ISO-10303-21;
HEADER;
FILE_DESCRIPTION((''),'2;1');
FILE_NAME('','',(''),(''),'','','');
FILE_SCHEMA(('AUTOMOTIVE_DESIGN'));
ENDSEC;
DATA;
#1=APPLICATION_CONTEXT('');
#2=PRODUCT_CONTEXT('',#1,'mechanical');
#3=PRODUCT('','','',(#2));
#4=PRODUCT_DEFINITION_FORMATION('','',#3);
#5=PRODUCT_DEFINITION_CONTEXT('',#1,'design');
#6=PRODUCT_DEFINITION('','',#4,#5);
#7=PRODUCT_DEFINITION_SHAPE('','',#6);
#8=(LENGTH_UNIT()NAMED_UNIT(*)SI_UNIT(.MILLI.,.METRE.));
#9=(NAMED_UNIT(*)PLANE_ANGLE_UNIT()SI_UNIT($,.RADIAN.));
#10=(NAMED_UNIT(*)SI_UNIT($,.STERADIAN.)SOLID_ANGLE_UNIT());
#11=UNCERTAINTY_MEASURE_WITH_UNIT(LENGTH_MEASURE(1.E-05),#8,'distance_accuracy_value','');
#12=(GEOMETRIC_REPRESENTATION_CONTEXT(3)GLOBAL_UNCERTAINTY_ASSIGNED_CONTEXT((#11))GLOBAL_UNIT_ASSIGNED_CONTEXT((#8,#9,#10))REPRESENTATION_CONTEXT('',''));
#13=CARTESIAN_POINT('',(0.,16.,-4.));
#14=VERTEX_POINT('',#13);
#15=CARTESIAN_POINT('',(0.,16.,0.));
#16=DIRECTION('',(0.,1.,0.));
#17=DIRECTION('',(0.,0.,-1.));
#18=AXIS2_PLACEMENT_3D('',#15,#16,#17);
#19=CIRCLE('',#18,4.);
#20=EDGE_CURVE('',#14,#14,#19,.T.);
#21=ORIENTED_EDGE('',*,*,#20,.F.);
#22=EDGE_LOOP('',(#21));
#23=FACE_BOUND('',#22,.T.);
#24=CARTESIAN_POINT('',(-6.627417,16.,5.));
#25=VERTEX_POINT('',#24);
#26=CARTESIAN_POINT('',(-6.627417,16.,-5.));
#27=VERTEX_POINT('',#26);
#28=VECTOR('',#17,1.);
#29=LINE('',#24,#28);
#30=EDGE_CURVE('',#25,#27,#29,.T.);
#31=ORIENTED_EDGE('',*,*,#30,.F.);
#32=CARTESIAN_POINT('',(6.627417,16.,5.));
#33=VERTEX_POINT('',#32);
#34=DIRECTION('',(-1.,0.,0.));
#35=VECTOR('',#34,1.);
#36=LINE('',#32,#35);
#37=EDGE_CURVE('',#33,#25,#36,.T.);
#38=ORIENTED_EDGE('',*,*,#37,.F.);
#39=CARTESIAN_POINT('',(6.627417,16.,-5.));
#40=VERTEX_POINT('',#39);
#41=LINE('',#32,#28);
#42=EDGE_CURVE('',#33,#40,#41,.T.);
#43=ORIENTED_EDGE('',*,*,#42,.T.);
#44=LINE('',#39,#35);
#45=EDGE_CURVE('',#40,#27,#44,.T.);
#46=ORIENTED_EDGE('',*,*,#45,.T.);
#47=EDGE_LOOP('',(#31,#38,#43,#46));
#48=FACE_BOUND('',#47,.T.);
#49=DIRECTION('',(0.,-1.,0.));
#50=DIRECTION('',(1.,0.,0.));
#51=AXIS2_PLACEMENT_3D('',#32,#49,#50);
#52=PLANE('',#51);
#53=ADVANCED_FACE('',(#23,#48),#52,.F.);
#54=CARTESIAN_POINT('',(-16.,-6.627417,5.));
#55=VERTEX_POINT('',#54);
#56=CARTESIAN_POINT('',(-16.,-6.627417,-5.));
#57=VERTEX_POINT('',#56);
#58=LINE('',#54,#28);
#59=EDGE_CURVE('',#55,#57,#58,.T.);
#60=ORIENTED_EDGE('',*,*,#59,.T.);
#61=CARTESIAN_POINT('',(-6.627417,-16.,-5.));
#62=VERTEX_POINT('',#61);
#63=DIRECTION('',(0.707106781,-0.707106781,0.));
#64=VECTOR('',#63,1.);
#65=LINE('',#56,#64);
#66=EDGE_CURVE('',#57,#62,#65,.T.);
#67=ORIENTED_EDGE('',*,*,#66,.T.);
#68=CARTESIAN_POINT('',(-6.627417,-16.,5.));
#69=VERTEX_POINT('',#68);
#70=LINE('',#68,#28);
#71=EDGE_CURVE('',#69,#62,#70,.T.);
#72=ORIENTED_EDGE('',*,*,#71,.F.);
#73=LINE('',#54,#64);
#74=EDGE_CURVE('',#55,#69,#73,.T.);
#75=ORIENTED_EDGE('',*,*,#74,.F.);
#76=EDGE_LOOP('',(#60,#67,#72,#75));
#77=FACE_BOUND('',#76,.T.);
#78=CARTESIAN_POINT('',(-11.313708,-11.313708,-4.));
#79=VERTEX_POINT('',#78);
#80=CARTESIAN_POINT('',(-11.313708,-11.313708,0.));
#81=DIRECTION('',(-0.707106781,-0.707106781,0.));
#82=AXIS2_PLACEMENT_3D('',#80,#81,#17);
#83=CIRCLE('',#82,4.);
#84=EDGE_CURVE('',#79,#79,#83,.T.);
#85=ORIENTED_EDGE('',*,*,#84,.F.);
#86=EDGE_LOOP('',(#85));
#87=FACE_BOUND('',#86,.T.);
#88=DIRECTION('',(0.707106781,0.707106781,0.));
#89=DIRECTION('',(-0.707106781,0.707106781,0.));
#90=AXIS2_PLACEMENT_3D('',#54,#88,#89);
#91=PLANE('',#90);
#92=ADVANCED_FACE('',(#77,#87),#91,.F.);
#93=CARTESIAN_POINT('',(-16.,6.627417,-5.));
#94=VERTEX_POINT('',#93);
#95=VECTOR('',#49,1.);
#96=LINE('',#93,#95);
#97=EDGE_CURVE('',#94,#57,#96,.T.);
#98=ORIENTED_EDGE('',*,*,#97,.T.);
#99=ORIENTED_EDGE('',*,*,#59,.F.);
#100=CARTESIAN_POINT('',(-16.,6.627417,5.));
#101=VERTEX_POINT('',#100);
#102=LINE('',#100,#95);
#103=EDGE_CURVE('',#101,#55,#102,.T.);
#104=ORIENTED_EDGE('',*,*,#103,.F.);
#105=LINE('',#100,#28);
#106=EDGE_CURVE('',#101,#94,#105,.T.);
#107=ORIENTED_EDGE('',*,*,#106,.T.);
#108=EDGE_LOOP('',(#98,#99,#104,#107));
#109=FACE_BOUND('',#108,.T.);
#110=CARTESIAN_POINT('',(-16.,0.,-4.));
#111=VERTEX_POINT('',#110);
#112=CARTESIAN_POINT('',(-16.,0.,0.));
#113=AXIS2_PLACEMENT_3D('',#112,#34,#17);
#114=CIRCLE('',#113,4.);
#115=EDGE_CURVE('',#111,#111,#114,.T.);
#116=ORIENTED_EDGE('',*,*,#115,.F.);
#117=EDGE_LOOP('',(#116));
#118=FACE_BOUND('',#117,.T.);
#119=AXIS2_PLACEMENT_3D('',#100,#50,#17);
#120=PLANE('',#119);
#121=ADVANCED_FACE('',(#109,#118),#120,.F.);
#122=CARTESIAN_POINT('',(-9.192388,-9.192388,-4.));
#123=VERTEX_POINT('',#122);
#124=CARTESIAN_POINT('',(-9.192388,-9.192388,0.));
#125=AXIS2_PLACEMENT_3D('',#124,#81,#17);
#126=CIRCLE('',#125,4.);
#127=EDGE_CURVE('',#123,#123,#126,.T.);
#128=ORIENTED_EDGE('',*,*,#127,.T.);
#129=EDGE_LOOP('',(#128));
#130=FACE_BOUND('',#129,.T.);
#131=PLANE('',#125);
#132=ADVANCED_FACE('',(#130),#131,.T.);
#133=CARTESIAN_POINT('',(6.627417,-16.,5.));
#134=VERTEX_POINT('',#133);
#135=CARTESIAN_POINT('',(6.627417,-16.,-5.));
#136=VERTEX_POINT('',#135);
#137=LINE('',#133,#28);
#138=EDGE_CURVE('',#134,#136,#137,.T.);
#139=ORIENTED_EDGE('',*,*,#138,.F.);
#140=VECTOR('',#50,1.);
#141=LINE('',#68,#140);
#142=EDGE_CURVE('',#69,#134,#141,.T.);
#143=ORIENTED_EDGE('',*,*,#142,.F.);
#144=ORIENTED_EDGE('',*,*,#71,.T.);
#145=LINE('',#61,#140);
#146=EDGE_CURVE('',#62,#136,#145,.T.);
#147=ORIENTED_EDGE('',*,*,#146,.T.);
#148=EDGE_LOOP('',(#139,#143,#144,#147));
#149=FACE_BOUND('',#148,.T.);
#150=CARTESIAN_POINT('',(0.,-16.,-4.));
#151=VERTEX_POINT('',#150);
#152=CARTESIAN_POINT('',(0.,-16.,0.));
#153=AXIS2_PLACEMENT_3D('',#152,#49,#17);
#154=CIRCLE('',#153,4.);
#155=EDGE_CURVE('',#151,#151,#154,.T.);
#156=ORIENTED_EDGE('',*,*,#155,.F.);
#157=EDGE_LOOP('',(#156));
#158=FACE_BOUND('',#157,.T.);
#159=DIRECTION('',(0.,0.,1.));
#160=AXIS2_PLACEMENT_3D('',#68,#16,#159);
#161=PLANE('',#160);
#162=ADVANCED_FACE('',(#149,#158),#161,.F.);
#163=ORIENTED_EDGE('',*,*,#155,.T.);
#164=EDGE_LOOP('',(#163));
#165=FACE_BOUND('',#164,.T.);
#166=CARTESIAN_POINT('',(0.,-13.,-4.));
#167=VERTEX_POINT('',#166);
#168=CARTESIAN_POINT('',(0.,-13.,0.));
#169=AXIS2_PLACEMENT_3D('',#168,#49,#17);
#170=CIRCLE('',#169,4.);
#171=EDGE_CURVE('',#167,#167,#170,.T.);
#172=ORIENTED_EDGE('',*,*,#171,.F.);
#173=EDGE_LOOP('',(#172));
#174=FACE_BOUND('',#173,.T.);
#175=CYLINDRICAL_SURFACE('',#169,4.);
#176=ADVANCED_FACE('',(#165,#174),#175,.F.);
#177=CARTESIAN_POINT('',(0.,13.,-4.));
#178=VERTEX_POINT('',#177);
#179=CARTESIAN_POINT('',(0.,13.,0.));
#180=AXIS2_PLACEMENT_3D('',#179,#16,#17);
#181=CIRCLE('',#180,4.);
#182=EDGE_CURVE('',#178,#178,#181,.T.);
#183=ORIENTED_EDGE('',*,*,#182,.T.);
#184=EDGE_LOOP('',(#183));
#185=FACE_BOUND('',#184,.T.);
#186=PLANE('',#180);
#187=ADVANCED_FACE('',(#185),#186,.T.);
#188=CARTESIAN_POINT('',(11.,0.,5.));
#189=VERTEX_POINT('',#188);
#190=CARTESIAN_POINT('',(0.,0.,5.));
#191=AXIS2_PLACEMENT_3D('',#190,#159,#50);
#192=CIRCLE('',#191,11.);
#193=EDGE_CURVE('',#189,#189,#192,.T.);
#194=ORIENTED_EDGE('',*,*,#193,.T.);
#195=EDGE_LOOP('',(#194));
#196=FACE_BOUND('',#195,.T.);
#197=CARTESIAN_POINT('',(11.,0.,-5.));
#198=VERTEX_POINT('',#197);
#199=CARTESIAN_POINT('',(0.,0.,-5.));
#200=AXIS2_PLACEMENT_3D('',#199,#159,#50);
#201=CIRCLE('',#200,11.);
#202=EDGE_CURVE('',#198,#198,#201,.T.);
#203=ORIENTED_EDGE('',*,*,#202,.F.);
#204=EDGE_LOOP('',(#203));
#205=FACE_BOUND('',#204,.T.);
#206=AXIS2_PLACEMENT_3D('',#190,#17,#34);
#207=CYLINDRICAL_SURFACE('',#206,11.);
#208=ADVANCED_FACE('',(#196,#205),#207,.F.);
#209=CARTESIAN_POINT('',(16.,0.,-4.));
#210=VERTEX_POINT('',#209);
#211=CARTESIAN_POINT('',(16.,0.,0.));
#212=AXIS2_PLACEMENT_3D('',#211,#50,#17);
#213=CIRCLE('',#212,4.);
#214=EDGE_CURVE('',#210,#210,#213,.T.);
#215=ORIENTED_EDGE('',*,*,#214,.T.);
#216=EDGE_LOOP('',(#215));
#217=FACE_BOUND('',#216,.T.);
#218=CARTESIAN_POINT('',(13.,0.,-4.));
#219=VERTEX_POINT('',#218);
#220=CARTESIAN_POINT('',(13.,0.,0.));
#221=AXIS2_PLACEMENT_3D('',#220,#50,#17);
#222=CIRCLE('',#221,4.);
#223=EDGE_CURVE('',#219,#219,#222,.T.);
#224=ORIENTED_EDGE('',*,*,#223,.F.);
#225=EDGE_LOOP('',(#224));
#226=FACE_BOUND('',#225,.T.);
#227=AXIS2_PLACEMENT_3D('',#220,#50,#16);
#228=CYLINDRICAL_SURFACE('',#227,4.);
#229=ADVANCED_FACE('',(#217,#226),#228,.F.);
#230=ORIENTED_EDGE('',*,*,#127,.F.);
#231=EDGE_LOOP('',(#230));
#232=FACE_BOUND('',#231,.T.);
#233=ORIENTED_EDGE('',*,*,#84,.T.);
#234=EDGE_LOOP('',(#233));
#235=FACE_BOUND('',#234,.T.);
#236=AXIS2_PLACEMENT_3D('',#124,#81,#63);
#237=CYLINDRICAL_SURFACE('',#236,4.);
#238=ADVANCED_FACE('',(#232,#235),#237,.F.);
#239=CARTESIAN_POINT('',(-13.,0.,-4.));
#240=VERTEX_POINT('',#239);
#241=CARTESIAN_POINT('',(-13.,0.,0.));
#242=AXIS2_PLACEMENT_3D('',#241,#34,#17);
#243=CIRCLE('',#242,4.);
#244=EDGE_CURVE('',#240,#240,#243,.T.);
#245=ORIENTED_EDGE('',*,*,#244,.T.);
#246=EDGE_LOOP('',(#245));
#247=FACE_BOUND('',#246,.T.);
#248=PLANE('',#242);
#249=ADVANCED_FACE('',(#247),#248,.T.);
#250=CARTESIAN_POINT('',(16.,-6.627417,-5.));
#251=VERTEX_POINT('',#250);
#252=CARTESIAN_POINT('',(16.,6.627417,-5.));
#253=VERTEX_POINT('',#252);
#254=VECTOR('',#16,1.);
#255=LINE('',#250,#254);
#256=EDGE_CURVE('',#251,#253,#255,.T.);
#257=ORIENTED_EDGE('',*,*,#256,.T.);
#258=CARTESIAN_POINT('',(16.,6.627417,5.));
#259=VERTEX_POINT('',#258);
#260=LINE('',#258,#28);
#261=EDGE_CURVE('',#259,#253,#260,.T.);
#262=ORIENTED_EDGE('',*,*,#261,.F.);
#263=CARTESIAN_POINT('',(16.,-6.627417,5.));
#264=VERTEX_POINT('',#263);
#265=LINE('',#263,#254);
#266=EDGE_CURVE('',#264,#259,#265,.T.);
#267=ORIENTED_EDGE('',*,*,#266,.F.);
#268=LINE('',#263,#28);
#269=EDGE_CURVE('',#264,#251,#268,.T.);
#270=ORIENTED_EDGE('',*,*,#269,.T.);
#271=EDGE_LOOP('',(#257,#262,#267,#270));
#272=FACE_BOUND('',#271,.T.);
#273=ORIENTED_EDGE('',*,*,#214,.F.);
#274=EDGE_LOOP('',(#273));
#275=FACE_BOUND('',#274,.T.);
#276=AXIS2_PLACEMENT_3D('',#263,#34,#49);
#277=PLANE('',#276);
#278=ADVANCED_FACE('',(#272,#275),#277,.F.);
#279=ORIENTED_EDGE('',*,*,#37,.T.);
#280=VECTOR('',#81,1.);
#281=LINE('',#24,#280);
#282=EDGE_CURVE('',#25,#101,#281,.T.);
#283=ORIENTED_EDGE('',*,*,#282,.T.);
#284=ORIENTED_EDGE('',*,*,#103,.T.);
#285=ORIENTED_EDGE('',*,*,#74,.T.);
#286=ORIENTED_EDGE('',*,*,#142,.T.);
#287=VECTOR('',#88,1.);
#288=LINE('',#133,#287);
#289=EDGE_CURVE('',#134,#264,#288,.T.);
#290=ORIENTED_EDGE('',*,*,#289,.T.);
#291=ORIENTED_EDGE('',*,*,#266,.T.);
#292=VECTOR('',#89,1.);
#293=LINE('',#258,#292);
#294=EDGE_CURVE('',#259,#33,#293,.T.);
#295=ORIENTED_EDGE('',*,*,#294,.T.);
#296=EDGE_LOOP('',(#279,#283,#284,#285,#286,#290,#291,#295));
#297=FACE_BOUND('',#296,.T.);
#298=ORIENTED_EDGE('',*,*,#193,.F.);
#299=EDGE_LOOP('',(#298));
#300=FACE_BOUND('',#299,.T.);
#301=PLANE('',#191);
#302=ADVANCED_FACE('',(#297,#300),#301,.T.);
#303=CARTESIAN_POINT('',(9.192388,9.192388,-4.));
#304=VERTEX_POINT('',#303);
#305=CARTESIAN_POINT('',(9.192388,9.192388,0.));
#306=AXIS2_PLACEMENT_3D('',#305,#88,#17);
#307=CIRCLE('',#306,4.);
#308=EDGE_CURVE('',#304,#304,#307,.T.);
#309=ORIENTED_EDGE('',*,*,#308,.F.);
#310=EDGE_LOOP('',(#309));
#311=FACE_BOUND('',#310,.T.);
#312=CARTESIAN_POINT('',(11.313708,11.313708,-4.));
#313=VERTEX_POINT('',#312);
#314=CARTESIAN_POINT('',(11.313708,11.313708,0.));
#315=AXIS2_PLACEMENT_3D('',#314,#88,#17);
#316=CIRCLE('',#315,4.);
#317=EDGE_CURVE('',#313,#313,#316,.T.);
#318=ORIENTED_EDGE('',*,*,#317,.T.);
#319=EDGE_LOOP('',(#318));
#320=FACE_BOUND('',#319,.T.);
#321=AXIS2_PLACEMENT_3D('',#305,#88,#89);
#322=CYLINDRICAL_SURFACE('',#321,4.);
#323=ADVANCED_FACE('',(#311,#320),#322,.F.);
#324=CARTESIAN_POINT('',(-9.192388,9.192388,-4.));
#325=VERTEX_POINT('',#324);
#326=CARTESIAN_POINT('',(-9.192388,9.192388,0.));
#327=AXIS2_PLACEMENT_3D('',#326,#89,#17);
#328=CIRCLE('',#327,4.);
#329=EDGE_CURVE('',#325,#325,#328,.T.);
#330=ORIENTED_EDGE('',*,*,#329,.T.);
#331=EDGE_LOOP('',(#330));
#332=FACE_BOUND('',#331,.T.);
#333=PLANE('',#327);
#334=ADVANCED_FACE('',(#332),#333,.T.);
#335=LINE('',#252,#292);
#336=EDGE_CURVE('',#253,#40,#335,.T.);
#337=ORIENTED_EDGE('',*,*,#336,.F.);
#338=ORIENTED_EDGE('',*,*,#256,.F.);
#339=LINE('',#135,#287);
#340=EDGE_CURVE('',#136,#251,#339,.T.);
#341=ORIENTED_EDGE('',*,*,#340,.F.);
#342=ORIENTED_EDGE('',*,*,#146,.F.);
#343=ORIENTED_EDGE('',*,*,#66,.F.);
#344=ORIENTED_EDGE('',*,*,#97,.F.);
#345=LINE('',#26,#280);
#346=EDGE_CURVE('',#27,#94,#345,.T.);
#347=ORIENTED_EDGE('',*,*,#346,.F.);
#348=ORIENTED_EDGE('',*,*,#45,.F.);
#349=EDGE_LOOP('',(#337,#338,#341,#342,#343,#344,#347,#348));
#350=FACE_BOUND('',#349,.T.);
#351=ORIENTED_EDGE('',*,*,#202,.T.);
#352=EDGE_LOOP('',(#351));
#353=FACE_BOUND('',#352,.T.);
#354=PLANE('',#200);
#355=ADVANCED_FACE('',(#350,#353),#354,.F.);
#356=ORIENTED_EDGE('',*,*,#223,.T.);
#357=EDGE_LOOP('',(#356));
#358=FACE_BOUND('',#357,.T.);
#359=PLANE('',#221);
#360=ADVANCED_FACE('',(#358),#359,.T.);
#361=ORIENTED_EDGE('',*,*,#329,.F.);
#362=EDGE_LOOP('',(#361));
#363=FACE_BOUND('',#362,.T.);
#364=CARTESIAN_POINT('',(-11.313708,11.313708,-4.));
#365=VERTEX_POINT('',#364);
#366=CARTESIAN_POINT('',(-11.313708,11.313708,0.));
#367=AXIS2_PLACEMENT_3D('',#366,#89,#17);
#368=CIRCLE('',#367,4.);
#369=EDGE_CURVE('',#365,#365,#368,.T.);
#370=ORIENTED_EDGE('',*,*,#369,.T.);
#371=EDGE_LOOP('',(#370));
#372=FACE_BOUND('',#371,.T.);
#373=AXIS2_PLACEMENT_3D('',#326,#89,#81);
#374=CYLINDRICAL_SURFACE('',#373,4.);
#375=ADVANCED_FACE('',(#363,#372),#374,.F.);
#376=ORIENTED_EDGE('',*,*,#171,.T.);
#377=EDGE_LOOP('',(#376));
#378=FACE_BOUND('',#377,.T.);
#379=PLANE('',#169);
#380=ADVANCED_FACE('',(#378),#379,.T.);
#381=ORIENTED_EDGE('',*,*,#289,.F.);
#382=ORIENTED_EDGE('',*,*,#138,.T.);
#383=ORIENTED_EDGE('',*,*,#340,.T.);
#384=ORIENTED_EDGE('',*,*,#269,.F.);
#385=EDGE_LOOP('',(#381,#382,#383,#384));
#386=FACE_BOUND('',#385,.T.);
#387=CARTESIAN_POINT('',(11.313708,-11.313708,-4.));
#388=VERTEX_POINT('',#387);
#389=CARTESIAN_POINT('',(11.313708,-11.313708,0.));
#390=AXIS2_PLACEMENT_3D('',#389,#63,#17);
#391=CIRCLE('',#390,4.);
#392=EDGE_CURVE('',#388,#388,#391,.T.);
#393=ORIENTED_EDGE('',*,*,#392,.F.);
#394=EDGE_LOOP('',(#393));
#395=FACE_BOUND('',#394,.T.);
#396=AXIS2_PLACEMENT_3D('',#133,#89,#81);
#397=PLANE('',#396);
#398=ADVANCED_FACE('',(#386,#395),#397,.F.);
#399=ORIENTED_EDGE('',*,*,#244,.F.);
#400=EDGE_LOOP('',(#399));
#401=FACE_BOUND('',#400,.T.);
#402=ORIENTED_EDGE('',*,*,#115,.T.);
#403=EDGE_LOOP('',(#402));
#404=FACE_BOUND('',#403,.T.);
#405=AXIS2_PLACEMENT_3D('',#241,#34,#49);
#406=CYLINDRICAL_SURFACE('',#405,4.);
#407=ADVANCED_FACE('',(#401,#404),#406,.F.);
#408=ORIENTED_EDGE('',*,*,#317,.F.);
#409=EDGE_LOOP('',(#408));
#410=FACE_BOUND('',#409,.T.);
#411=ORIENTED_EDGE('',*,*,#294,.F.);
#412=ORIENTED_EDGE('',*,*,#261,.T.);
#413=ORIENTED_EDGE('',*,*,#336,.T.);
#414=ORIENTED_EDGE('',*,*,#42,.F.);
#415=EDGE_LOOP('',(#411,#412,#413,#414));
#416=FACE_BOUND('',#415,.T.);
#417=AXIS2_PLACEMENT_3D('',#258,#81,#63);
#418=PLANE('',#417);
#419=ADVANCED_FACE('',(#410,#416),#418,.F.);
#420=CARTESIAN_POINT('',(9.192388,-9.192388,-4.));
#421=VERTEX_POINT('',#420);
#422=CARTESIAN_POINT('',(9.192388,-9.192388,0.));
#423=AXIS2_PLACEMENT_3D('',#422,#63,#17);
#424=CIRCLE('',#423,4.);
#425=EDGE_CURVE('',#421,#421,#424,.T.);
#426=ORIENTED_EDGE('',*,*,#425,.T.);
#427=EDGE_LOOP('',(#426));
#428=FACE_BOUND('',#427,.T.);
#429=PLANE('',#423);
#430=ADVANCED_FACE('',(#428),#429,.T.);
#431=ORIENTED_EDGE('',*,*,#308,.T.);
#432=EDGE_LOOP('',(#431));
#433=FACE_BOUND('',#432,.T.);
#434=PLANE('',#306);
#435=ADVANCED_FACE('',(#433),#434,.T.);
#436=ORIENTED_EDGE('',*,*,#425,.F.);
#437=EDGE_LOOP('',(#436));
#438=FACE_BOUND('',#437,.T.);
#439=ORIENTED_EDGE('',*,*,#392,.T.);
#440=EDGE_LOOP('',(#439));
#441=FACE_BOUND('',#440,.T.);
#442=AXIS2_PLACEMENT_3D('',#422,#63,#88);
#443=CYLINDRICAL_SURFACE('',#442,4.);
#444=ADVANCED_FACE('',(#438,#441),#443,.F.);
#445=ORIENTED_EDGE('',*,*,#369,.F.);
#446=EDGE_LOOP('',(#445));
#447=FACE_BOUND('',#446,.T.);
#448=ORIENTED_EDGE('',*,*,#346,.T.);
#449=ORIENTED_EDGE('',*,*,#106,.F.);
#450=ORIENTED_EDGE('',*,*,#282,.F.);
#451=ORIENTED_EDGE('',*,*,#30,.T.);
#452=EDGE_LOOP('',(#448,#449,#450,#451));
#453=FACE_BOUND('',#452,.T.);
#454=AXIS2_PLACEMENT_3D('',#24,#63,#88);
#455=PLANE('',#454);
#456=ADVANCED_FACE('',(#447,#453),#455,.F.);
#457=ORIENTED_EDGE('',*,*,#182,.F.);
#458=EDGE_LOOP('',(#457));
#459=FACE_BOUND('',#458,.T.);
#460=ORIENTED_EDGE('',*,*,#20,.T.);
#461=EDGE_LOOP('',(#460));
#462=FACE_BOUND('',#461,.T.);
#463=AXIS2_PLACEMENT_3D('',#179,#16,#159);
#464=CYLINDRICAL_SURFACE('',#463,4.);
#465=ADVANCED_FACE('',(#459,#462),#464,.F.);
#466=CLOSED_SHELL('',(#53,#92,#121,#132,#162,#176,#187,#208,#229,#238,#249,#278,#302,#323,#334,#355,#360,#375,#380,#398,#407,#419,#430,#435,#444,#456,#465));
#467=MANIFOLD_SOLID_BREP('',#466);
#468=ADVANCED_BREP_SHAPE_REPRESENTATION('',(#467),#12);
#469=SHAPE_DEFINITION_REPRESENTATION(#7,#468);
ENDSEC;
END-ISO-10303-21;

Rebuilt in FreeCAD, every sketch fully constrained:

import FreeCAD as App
import Part
import Sketcher
Q = App.Units.Quantity


def add_polygon(sketch, points):
    """Adds a closed chain of lines whose ends are joined by coincident constraints."""
    first, n = sketch.GeometryCount, len(points)
    for a, b in zip(points, points[1:] + points[:1]):
        sketch.addGeometry(Part.LineSegment(App.Vector(*a, 0), App.Vector(*b, 0)), False)
    for i in range(n):
        sketch.addConstraint(Sketcher.Constraint("Coincident", first + i, 2, first + (i + 1) % n, 1))

doc = App.newDocument("Part")
body = doc.addObject("PartDesign::Body", "Body")

sketch1 = body.newObject("Sketcher::SketchObject", "Sketch")
sketch1.AttachmentSupport = (doc.getObject("XY_Plane"), [""])
sketch1.MapMode = "FlatFace"
add_polygon(sketch1, [(6.627417, 16), (-6.627417, 16), (-16, 6.627417), (-16, -6.627417), (-6.627417, -16), (6.627417, -16), (16, -6.627417), (16, 6.627417)])
sketch1.addGeometry(Part.Circle(App.Vector(0, 0, 0), App.Vector(0, 0, 1), 11), False)
sketch1.addConstraint(Sketcher.Constraint("Horizontal", 0))
sketch1.addConstraint(Sketcher.Constraint("Vertical", 2))
sketch1.addConstraint(Sketcher.Constraint("Horizontal", 4))
sketch1.addConstraint(Sketcher.Constraint("Vertical", 6))
sketch1.addConstraint(Sketcher.Constraint("Coincident", 8, 3, -1, 1))
sketch1.addConstraint(Sketcher.Constraint("Symmetric", 0, 2, 4, 2, -1, 1))
sketch1.addConstraint(Sketcher.Constraint("Symmetric", 1, 2, 5, 2, -1, 1))
sketch1.addConstraint(Sketcher.Constraint("Perpendicular", 1, 3))
sketch1.addConstraint(Sketcher.Constraint("Perpendicular", 5, 7))
sketch1.addConstraint(Sketcher.Constraint("Horizontal", 2, 2, 5, 2))
sketch1.addConstraint(Sketcher.Constraint("Horizontal", 1, 2, 6, 2))
sketch1.addConstraint(Sketcher.Constraint("Vertical", 0, 2, 3, 2))
sketch1.addConstraint(Sketcher.Constraint("Equal", 4, 2))
sketch1.addConstraint(Sketcher.Constraint("Diameter", 8, Q("22 mm")))
sketch1.addConstraint(Sketcher.Constraint("DistanceY", -1, 1, 0, 2, Q("16 mm")))
sketch1.addConstraint(Sketcher.Constraint("DistanceX", 0, 2, 0, 1, Q("13.254834 mm")))
pad1 = body.newObject("PartDesign::Pad", "Pad")
pad1.Profile = sketch1
pad1.Length = 10
pad1.Midplane = True

sketch2 = body.newObject("Sketcher::SketchObject", "Sketch001")
sketch2.AttachmentSupport = (doc.getObject("XZ_Plane"), [""])
sketch2.MapMode = "FlatFace"
sketch2.AttachmentOffset = App.Placement(App.Vector(0, 0, 16), App.Rotation())
sketch2.addGeometry(Part.Circle(App.Vector(0, 0, 0), App.Vector(0, 0, 1), 4), False)
sketch2.addConstraint(Sketcher.Constraint("Coincident", 0, 3, -1, 1))
sketch2.addConstraint(Sketcher.Constraint("Diameter", 0, Q("8 mm")))
pocket1 = body.newObject("PartDesign::Pocket", "Pocket")
pocket1.Profile = sketch2
pocket1.Length = 3
doc.recompute()

polarpattern = body.newObject("PartDesign::PolarPattern", "PolarPattern")
polarpattern.Originals = [pocket1]
polarpattern.Axis = (doc.getObject("Z_Axis"), [""])
polarpattern.Angle = 360
polarpattern.Occurrences = 8
body.Tip = polarpattern

doc.recompute()
